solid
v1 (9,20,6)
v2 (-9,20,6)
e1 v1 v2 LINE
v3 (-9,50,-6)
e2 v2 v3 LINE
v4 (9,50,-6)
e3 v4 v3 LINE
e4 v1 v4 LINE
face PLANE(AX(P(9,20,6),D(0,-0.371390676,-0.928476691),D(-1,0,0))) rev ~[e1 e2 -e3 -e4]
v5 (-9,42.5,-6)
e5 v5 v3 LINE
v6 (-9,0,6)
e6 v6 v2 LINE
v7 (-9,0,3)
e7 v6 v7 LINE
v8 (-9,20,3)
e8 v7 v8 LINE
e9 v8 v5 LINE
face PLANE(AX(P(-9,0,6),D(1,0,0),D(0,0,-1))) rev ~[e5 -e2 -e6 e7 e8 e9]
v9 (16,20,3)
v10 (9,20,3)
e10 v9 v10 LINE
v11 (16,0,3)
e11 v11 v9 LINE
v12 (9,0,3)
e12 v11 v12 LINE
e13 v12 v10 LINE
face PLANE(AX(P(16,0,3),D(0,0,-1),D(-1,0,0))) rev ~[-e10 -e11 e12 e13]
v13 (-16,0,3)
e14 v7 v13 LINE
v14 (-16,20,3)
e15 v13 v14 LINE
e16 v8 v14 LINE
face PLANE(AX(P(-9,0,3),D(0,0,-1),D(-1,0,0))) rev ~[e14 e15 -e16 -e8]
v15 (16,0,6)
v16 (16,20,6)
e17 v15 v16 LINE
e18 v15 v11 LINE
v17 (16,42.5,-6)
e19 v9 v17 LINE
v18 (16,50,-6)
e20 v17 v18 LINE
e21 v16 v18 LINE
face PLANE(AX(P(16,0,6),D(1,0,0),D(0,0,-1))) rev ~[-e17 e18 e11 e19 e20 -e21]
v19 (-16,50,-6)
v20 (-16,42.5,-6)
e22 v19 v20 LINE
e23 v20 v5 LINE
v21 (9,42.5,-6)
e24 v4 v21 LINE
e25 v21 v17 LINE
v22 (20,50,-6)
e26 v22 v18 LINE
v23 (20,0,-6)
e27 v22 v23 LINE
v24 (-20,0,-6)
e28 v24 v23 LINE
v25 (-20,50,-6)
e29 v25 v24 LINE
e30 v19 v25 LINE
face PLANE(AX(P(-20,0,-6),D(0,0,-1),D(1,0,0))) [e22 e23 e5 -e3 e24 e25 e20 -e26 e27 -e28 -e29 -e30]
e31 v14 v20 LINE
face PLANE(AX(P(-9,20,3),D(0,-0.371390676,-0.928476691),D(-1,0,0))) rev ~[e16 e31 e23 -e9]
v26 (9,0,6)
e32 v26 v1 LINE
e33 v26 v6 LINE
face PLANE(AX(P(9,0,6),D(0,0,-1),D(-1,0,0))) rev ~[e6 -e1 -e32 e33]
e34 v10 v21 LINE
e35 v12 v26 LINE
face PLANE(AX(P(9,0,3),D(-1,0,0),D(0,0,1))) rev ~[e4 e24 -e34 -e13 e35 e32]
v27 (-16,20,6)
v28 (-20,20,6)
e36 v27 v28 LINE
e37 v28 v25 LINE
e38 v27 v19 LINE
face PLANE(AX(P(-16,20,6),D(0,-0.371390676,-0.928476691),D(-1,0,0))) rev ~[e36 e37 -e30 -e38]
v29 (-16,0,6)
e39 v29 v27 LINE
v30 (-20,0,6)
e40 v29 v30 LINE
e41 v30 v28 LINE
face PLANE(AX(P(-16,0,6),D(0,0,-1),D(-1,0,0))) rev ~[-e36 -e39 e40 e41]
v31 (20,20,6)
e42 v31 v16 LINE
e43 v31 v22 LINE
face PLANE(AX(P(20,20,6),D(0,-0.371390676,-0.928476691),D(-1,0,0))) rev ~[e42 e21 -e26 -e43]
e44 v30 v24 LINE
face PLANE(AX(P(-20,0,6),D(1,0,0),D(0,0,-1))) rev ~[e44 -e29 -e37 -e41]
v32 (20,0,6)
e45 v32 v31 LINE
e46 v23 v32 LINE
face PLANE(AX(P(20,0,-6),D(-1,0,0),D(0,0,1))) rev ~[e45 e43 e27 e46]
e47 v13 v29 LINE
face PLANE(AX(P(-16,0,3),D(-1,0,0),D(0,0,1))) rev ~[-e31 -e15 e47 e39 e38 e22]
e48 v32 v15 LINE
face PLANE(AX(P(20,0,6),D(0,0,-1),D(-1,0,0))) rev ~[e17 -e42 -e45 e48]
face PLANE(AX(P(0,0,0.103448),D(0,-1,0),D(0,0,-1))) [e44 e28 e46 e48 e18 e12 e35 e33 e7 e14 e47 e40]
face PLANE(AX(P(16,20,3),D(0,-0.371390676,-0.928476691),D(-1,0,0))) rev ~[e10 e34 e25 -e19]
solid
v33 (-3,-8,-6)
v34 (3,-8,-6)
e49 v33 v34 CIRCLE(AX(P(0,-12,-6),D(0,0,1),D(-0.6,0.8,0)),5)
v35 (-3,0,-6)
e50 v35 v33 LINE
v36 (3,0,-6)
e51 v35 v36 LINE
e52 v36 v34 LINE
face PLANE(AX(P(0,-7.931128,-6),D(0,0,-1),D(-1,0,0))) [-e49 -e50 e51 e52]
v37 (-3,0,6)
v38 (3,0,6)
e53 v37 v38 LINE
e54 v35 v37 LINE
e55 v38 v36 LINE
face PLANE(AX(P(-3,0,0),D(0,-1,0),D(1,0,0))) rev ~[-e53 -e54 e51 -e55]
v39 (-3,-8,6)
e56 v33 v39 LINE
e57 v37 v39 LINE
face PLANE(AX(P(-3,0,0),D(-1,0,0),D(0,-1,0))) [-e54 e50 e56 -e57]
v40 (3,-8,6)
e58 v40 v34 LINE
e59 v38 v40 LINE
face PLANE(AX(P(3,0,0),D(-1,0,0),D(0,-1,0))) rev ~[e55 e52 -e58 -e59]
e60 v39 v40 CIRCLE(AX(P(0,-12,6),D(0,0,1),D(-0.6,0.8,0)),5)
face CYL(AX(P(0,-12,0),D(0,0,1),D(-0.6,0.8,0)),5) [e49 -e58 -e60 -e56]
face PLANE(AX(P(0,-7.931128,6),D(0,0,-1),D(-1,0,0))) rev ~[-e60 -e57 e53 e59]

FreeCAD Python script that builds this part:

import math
import FreeCAD as App
import Part
import Sketcher
from FreeCAD import Vector
Q = App.Units.Quantity


def add_polygon(sketch, points):
    """Adds a closed chain of lines whose ends are joined by coincident constraints."""
    first, n = sketch.GeometryCount, len(points)
    for a, b in zip(points, points[1:] + points[:1]):
        sketch.addGeometry(Part.LineSegment(App.Vector(*a, 0), App.Vector(*b, 0)), False)
    for i in range(n):
        sketch.addConstraint(Sketcher.Constraint("Coincident", first + i, 2, first + (i + 1) % n, 1))

doc = App.newDocument("Part")
params = doc.addObject("Spreadsheet::Sheet", "Params")
for row, (alias, value) in enumerate([
    ("sketch1_width", "40 mm"),
    ("sketch1_width2", "4 mm"),
    ("sketch1_width3", "7 mm"),
    ("sketch1_height", "12 mm"),
    ("sketch1_height2", "3 mm"),
    ("sketch2_width", "20 mm"),
    ("sketch3_width", "40 mm"),
    ("sketch3_height", "12 mm"),
    ("sketch4_radius", "5 mm"),
    ("sketch4_width", "6 mm"),
    ("sketch4_height", "8 mm"),
    ("pad1_length", "12 mm"),
], start=1):
    params.set(f"A{row}", alias)
    params.set(f"B{row}", "=" + value)
    params.setAlias(f"B{row}", alias)

body = doc.addObject("PartDesign::Body", "Body")

# Sketch on XZ plane
sketch1 = body.newObject("Sketcher::SketchObject", "Sketch")
sketch1.AttachmentSupport = (doc.getObject("XZ_Plane"), [""])
sketch1.MapMode = "FlatFace"
add_polygon(sketch1, [(-20, 6), (-20, -6), (20, -6), (20, 6), (16, 6), (16, 3), (9, 3), (9, 6), (-9, 6), (-9, 3), (-16, 3), (-16, 6)])  # lines 0-11
sketch1.addConstraint(Sketcher.Constraint("Vertical", 0))
sketch1.addConstraint(Sketcher.Constraint("Horizontal", 1))
sketch1.addConstraint(Sketcher.Constraint("Vertical", 2))
sketch1.addConstraint(Sketcher.Constraint("Horizontal", 3))
sketch1.addConstraint(Sketcher.Constraint("Vertical", 4))
sketch1.addConstraint(Sketcher.Constraint("Horizontal", 5))
sketch1.addConstraint(Sketcher.Constraint("Vertical", 6))
sketch1.addConstraint(Sketcher.Constraint("Horizontal", 7))
sketch1.addConstraint(Sketcher.Constraint("Vertical", 8))
sketch1.addConstraint(Sketcher.Constraint("Horizontal", 9))
sketch1.addConstraint(Sketcher.Constraint("Vertical", 10))
sketch1.addConstraint(Sketcher.Constraint("Horizontal", 11))
sketch1.addConstraint(Sketcher.Constraint("Symmetric", 0, 2, 2, 2, -1, 1))
sketch1.addConstraint(Sketcher.Constraint("Symmetric", 5, 2, 8, 2, -2))
sketch1.addConstraint(Sketcher.Constraint("Symmetric", 3, 2, 10, 2, -2))
sketch1.addConstraint(Sketcher.Constraint("Horizontal", 3, 2, 6, 2))
sketch1.addConstraint(Sketcher.Constraint("DistanceX", 1, 1, 1, 2, Q("40 mm")))
sketch1.addConstraint(Sketcher.Constraint("DistanceX", 3, 2, 3, 1, Q("4 mm")))
sketch1.addConstraint(Sketcher.Constraint("DistanceX", 5, 2, 5, 1, Q("7 mm")))
sketch1.addConstraint(Sketcher.Constraint("DistanceY", 0, 2, 0, 1, Q("12 mm")))
sketch1.addConstraint(Sketcher.Constraint("DistanceY", 4, 2, 4, 1, Q("3 mm")))
sketch1.setExpression("Constraints[28]", "Params.sketch1_width")
sketch1.setExpression("Constraints[29]", "Params.sketch1_width2")
sketch1.setExpression("Constraints[30]", "Params.sketch1_width3")
sketch1.setExpression("Constraints[31]", "Params.sketch1_height")
sketch1.setExpression("Constraints[32]", "Params.sketch1_height2")

# Sketch on YZ plane
sketch2 = body.newObject("Sketcher::SketchObject", "Sketch001")
sketch2.AttachmentSupport = (doc.getObject("YZ_Plane"), [""])
sketch2.MapMode = "FlatFace"
sketch2.addGeometry(Part.LineSegment(Vector(0, 0, 0), Vector(20, 0, 0)), False)
sketch2.addGeometry(Part.LineSegment(Vector(20, 0, 0), Vector(50, -12, 0)), False)
sketch2.addConstraint(Sketcher.Constraint("Coincident", 0, 2, 1, 1))
sketch2.addConstraint(Sketcher.Constraint("Horizontal", 0))
sketch2.addConstraint(Sketcher.Constraint("Coincident", 0, 1, -1, 1))
sketch2.addConstraint(Sketcher.Constraint("DistanceX", 0, 1, 0, 2, Q("20 mm")))
sketch2.addConstraint(Sketcher.Constraint("DistanceX", -1, 1, 1, 2, Q("50 mm")))
sketch2.addConstraint(Sketcher.Constraint("DistanceY", 1, 2, -1, 1, Q("12 mm")))
sketch2.setExpression("Constraints[3]", "Params.sketch2_width")
doc.recompute()

additivepipe = body.newObject("PartDesign::AdditivePipe", "AdditivePipe")
additivepipe.Profile = sketch1
additivepipe.Spine = (sketch2, ["Edge1", "Edge2"])

# Sketch on XZ plane
sketch3 = body.newObject("Sketcher::SketchObject", "Sketch002")
sketch3.AttachmentSupport = (doc.getObject("XZ_Plane"), [""])
sketch3.MapMode = "FlatFace"
add_polygon(sketch3, [(-20, -6), (-20, -18), (20, -18), (20, -6)])  # lines 0-3
sketch3.addConstraint(Sketcher.Constraint("Vertical", 0))
sketch3.addConstraint(Sketcher.Constraint("Horizontal", 1))
sketch3.addConstraint(Sketcher.Constraint("Vertical", 2))
sketch3.addConstraint(Sketcher.Constraint("Horizontal", 3))
sketch3.addConstraint(Sketcher.Constraint("DistanceX", 1, 1, 1, 2, Q("40 mm")))
sketch3.addConstraint(Sketcher.Constraint("DistanceY", 0, 2, 0, 1, Q("12 mm")))
sketch3.addConstraint(Sketcher.Constraint("DistanceX", 0, 2, -1, 1, Q("20 mm")))
sketch3.addConstraint(Sketcher.Constraint("DistanceY", 0, 2, -1, 1, Q("18 mm")))
sketch3.setExpression("Constraints[8]", "Params.sketch3_width")
sketch3.setExpression("Constraints[9]", "Params.sketch3_height")
pocket1 = body.newObject("PartDesign::Pocket", "Pocket")
pocket1.Profile = sketch3
pocket1.Type = "ThroughAll"
body2 = doc.addObject("PartDesign::Body", "Body001")

# Sketch on XY plane
sketch4 = body2.newObject("Sketcher::SketchObject", "Sketch003")
sketch4.AttachmentSupport = (doc.getObject("XY_Plane001"), [""])
sketch4.MapMode = "FlatFace"
sketch4.addGeometry(Part.LineSegment(Vector(3, 0, 0), Vector(-3, 0, 0)), False)
sketch4.addGeometry(Part.LineSegment(Vector(-3, 0, 0), Vector(-3, -8, 0)), False)
sketch4.addGeometry(Part.ArcOfCircle(Part.Circle(Vector(0, -12, 0), Vector(0, 0, 1), 5), math.radians(127), math.radians(413)), False)
sketch4.addGeometry(Part.LineSegment(Vector(3, -8, 0), Vector(3, 0, 0)), False)
sketch4.addConstraint(Sketcher.Constraint("Coincident", 0, 2, 1, 1))
sketch4.addConstraint(Sketcher.Constraint("Coincident", 1, 2, 2, 1))
sketch4.addConstraint(Sketcher.Constraint("Coincident", 2, 2, 3, 1))
sketch4.addConstraint(Sketcher.Constraint("Coincident", 3, 2, 0, 1))
sketch4.addConstraint(Sketcher.Constraint("Horizontal", 0))
sketch4.addConstraint(Sketcher.Constraint("Vertical", 1))
sketch4.addConstraint(Sketcher.Constraint("Vertical", 3))
sketch4.addConstraint(Sketcher.Constraint("Symmetric", 0, 2, 3, 2, -1, 1))
sketch4.addConstraint(Sketcher.Constraint("PointOnObject", 2, 3, -2))
sketch4.addConstraint(Sketcher.Constraint("Radius", 2, Q("5 mm")))
sketch4.addConstraint(Sketcher.Constraint("DistanceX", 0, 2, 0, 1, Q("6 mm")))
sketch4.addConstraint(Sketcher.Constraint("DistanceY", 1, 2, 1, 1, Q("8 mm")))
sketch4.setExpression("Constraints[9]", "Params.sketch4_radius")
sketch4.setExpression("Constraints[10]", "Params.sketch4_width")
sketch4.setExpression("Constraints[11]", "Params.sketch4_height")
pad1 = body2.newObject("PartDesign::Pad", "Pad")
pad1.Profile = sketch4
pad1.setExpression("Length", "Params.pad1_length")
pad1.Midplane = True

doc.recompute()
